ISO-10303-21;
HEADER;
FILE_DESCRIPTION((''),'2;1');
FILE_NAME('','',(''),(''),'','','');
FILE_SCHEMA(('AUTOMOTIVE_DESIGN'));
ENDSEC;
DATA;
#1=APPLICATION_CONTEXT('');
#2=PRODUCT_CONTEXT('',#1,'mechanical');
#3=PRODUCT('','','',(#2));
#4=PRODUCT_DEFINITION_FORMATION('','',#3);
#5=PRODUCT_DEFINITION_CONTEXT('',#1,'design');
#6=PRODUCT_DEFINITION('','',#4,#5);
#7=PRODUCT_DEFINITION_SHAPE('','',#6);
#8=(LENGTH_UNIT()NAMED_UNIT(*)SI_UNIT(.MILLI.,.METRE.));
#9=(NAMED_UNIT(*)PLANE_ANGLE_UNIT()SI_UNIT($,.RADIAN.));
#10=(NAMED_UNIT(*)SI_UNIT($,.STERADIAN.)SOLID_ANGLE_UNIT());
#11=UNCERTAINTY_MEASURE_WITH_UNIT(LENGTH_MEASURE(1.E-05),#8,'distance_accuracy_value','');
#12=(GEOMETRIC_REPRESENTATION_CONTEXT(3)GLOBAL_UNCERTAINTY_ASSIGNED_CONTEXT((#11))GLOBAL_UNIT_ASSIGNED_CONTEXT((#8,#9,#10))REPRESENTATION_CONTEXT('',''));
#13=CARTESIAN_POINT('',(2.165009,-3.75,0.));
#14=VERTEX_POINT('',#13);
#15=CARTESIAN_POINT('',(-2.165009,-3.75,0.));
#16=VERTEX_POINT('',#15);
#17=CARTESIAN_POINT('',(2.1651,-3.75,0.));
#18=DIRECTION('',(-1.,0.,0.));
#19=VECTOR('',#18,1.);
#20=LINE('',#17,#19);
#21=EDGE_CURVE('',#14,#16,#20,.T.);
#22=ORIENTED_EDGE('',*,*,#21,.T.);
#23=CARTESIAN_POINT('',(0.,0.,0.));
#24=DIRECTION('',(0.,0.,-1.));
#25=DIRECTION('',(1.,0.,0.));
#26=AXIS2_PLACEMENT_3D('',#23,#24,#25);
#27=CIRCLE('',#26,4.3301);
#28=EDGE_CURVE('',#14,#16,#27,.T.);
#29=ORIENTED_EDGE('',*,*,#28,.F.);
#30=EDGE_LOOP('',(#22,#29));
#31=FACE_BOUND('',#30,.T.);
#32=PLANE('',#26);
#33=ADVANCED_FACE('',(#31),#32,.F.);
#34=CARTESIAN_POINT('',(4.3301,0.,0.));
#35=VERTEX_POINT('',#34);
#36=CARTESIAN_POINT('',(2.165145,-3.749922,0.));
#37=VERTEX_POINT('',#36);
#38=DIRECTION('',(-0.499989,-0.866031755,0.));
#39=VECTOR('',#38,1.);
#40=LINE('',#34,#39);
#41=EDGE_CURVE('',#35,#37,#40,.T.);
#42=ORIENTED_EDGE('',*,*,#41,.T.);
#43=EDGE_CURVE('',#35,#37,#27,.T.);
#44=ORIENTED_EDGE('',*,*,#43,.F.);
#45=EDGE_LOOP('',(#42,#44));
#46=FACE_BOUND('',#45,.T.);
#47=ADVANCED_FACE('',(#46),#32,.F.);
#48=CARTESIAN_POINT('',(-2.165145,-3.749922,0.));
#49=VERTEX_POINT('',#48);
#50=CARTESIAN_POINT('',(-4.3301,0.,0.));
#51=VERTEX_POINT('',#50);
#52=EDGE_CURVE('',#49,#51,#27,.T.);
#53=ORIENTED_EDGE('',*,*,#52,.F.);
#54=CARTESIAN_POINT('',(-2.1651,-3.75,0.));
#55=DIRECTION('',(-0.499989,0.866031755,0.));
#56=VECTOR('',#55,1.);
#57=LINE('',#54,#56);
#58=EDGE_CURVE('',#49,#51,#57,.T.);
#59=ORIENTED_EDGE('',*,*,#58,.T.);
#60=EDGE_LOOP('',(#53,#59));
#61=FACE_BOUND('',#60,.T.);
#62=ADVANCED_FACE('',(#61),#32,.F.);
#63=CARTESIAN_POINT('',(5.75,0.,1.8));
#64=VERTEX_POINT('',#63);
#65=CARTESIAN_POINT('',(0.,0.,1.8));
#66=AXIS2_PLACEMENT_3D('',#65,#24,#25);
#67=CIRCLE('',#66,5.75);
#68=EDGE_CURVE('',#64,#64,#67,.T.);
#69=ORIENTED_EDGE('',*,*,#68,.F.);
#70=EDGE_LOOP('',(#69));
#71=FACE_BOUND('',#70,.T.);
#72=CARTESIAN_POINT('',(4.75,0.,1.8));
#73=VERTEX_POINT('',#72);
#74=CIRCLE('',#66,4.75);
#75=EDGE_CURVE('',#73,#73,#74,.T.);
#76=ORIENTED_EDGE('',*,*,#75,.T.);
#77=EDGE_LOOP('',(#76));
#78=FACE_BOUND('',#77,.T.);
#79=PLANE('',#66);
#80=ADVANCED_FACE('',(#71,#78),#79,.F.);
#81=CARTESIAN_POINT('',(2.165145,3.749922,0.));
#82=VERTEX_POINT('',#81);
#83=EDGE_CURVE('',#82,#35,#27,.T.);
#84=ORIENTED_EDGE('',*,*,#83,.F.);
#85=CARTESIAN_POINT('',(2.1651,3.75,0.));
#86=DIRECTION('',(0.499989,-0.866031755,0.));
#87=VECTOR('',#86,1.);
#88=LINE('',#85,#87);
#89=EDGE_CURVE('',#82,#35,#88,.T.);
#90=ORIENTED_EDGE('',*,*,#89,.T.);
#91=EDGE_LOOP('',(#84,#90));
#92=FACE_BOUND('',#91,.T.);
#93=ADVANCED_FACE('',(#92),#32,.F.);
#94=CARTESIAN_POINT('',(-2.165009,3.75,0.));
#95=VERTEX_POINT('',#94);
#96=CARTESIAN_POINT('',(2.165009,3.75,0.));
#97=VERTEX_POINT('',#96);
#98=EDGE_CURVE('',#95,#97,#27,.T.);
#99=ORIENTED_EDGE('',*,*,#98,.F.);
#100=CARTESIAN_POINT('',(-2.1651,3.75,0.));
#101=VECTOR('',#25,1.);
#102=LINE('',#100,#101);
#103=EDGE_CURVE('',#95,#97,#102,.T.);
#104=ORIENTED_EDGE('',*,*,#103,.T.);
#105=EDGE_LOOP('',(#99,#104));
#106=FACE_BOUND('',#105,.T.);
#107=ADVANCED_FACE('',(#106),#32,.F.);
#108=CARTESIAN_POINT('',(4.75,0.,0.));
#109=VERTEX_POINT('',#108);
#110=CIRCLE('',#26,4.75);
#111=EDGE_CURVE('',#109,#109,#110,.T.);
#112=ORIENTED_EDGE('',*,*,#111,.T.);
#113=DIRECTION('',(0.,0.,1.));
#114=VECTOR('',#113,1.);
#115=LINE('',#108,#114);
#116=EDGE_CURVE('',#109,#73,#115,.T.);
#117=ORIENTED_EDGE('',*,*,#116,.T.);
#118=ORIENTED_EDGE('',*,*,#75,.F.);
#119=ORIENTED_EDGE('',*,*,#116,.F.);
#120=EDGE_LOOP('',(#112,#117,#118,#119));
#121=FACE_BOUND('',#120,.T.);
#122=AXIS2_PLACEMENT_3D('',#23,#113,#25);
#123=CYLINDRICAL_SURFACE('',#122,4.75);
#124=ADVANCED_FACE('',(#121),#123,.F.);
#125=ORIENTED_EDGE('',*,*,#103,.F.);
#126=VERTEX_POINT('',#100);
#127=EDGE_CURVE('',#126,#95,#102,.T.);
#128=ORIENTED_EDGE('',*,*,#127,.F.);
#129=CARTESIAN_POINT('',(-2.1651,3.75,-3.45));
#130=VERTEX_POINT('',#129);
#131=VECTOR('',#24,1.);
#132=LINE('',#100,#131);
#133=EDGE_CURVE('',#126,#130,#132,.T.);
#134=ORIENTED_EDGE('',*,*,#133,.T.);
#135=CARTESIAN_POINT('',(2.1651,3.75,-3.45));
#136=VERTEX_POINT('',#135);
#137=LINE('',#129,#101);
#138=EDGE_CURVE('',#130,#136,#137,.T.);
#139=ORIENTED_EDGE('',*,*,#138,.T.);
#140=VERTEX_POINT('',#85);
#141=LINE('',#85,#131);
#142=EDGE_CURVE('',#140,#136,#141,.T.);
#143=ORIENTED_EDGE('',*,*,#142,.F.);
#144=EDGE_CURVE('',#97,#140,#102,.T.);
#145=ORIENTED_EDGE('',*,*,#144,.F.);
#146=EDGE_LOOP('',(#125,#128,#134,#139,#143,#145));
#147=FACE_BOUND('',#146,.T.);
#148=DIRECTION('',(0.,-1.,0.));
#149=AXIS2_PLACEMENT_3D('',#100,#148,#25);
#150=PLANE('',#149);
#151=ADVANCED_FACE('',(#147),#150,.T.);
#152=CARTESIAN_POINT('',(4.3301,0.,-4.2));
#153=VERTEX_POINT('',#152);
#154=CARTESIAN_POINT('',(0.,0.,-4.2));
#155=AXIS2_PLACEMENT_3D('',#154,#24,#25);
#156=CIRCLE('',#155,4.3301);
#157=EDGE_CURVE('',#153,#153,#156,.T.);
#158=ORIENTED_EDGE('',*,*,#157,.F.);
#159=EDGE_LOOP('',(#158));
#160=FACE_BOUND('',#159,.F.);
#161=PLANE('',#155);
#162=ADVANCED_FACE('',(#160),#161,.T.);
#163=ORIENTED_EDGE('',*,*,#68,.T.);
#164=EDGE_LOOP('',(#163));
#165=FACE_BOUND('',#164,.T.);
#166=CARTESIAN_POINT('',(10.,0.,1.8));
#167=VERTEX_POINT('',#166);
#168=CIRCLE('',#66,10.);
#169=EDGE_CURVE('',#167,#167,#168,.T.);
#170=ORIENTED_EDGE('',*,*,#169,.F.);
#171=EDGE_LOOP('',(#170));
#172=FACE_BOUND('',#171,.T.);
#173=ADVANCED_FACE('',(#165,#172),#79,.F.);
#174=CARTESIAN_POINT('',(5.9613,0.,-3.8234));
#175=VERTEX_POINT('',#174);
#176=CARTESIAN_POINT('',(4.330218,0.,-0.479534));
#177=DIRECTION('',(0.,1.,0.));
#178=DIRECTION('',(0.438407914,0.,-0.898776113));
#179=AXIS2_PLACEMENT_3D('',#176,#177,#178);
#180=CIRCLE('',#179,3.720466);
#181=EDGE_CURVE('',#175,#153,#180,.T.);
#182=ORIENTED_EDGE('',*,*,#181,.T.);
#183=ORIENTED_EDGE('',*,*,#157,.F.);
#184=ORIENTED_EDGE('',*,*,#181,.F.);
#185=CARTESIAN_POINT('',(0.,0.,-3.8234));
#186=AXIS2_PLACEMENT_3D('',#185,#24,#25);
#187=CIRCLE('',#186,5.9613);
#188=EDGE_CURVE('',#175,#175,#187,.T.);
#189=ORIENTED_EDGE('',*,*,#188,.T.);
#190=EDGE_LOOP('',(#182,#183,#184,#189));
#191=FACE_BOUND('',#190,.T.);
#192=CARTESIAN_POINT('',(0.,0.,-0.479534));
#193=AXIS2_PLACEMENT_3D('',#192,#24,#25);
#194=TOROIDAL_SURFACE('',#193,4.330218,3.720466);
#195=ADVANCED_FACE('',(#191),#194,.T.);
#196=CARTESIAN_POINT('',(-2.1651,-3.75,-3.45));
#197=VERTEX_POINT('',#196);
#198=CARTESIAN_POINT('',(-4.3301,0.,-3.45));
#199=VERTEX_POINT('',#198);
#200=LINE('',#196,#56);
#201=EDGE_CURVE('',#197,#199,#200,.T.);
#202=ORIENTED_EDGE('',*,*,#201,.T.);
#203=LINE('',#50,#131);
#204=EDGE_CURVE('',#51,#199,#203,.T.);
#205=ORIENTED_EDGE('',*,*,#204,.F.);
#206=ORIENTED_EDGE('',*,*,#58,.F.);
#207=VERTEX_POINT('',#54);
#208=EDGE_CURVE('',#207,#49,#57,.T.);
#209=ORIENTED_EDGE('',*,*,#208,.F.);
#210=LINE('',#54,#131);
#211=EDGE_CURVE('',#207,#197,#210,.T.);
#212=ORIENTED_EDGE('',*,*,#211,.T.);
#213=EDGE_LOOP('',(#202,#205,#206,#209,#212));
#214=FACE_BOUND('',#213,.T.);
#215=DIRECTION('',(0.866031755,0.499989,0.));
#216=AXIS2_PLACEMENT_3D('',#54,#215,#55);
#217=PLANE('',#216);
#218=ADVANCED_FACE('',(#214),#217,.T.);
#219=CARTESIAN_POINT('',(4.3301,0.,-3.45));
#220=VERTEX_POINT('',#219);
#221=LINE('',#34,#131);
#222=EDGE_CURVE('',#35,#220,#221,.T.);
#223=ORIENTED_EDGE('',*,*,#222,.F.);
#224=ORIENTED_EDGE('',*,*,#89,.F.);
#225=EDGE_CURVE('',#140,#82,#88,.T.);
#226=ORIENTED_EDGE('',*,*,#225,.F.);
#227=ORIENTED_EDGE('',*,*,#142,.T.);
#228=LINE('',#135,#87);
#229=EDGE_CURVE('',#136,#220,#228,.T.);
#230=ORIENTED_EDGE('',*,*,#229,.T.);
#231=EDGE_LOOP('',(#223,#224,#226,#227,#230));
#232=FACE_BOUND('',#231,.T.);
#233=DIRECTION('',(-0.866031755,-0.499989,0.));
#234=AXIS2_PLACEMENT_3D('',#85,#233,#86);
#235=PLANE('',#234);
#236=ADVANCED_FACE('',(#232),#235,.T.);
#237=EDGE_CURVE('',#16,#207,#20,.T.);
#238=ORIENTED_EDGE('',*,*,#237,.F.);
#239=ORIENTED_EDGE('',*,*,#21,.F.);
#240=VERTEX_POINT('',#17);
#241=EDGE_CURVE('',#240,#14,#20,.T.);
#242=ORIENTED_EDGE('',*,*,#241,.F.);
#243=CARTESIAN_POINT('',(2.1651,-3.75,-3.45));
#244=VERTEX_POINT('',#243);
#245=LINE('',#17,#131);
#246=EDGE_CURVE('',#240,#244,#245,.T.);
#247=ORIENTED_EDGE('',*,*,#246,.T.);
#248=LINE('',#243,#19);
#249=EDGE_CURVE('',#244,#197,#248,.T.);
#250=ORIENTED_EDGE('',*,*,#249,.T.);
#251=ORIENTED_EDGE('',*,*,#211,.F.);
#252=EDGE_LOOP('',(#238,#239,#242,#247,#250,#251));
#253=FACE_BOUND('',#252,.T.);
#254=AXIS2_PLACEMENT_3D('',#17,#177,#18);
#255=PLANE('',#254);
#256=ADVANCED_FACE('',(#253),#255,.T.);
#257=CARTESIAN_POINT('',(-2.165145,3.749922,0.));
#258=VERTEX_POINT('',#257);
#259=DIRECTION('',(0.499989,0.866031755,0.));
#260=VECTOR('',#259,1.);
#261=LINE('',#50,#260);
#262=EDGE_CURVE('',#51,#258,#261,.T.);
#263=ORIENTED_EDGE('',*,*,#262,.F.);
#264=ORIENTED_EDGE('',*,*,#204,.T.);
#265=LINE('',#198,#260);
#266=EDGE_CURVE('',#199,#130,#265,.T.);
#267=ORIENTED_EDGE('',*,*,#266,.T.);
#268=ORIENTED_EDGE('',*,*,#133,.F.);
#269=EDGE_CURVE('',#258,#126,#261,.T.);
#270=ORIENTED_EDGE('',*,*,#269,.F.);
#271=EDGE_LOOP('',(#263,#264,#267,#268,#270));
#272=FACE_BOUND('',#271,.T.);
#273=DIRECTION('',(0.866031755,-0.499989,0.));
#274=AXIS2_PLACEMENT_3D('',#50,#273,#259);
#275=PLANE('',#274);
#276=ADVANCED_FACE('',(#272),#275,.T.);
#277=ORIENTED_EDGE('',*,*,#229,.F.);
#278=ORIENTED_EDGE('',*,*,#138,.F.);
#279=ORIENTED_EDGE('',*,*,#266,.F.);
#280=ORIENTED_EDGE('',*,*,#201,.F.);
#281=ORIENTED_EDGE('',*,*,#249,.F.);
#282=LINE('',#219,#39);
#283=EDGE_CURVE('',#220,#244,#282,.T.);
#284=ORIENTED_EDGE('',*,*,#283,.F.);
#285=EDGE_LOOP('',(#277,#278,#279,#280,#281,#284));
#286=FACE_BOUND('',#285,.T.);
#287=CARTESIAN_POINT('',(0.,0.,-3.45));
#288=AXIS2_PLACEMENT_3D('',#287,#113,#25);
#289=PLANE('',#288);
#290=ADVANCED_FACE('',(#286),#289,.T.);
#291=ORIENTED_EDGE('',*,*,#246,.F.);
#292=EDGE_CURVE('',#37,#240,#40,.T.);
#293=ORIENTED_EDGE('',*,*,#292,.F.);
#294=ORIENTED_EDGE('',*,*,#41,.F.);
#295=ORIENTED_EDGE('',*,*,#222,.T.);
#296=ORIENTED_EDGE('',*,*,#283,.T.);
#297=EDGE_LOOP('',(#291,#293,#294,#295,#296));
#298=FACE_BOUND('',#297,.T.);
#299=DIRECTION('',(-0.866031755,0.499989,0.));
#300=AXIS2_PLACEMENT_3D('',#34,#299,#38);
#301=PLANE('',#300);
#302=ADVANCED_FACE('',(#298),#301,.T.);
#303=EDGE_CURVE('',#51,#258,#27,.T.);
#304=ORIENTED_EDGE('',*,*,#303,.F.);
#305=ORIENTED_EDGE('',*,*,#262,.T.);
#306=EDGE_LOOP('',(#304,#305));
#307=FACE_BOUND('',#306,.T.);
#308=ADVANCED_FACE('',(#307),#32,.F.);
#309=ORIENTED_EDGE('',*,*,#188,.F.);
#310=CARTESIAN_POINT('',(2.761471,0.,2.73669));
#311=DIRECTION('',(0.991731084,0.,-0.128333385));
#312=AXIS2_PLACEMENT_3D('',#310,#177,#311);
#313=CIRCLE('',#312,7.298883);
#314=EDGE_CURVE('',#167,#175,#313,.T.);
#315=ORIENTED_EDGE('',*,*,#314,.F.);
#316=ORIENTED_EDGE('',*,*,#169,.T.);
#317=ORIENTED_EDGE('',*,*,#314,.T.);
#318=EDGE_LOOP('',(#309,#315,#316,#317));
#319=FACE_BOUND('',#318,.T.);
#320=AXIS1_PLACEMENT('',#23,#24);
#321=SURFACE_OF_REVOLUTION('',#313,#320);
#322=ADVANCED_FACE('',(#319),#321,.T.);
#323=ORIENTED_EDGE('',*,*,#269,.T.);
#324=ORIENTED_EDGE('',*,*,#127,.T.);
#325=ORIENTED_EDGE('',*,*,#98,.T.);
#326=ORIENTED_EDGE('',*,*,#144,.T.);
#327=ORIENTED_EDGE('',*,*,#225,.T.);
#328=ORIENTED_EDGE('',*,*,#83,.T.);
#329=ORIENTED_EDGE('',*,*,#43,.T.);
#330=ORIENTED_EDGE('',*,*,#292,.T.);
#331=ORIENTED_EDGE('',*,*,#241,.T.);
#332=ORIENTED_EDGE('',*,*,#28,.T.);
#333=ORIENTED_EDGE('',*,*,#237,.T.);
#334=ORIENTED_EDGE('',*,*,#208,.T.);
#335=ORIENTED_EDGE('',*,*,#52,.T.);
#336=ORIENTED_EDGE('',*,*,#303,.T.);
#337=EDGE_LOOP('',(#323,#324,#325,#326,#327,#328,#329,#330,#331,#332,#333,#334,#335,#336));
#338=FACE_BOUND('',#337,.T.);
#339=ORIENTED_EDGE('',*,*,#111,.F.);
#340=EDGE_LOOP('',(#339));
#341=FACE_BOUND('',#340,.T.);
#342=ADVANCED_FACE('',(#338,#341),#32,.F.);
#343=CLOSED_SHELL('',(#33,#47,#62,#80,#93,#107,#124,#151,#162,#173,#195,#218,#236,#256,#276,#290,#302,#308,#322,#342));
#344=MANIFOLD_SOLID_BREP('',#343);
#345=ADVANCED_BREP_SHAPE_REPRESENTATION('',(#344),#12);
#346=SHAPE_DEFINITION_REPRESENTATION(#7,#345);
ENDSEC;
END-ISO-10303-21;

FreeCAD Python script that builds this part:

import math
import FreeCAD as App
import Part
import Sketcher
from FreeCAD import Vector
Q = App.Units.Quantity


def add_polygon(sketch, points):
    """Adds a closed chain of lines whose ends are joined by coincident constraints."""
    first, n = sketch.GeometryCount, len(points)
    for a, b in zip(points, points[1:] + points[:1]):
        sketch.addGeometry(Part.LineSegment(App.Vector(*a, 0), App.Vector(*b, 0)), False)
    for i in range(n):
        sketch.addConstraint(Sketcher.Constraint("Coincident", first + i, 2, first + (i + 1) % n, 1))

doc = App.newDocument("Part")
body = doc.addObject("PartDesign::Body", "Body")

sketch1 = doc.addObject("Sketcher::SketchObject", "Sketch")
body.addObject(sketch1)
sketch1.AttachmentSupport = (doc.XZ_Plane, [""])
sketch1.MapMode = "FlatFace"
sketch1.addGeometry(Part.LineSegment(Vector(0, -4.2, 0), Vector(0, 0, 0)), False)
sketch1.addGeometry(Part.LineSegment(Vector(0, 0, 0), Vector(4.8, 0, 0)), False)
sketch1.addGeometry(Part.LineSegment(Vector(4.8, 0, 0), Vector(4.8, 1.8, 0)), False)
sketch1.addGeometry(Part.LineSegment(Vector(4.8, 1.8, 0), Vector(10, 1.8, 0)), False)
sketch1.addGeometry(Part.ArcOfCircle(Part.Circle(Vector(2.8, 2.7, 0), Vector(0, 0, 1), 7.3), math.radians(-64), math.radians(-7)), False)
sketch1.addGeometry(Part.ArcOfCircle(Part.Circle(Vector(4.3, -0.5, 0), Vector(0, 0, 1), 3.7), math.radians(-90), math.radians(-64)), False)
sketch1.addGeometry(Part.LineSegment(Vector(4.3, -4.2, 0), Vector(0, -4.2, 0)), False)
sketch1.addConstraint(Sketcher.Constraint("Coincident", 0, 2, 1, 1))
sketch1.addConstraint(Sketcher.Constraint("Coincident", 1, 2, 2, 1))
sketch1.addConstraint(Sketcher.Constraint("Coincident", 2, 2, 3, 1))
sketch1.addConstraint(Sketcher.Constraint("Coincident", 3, 2, 4, 2))
sketch1.addConstraint(Sketcher.Constraint("Tangent", 4, 1, 5, 2))
sketch1.addConstraint(Sketcher.Constraint("Tangent", 5, 1, 6, 1))
sketch1.addConstraint(Sketcher.Constraint("Coincident", 6, 2, 0, 1))
sketch1.addConstraint(Sketcher.Constraint("Vertical", 0))
sketch1.addConstraint(Sketcher.Constraint("Horizontal", 1))
sketch1.addConstraint(Sketcher.Constraint("Vertical", 2))
sketch1.addConstraint(Sketcher.Constraint("Horizontal", 3))
sketch1.addConstraint(Sketcher.Constraint("Horizontal", 6))
sketch1.addConstraint(Sketcher.Constraint("Coincident", 0, 2, -1, 1))
sketch1.addConstraint(Sketcher.Constraint("DistanceY", 0, 1, 0, 2, Q("4.2 mm")))
sketch1.addConstraint(Sketcher.Constraint("DistanceY", 2, 1, 2, 2, Q("1.8 mm")))
sketch1.addConstraint(Sketcher.Constraint("DistanceX", -1, 1, 3, 2, Q("10 mm")))
sketch1.addConstraint(Sketcher.Constraint("DistanceX", 1, 1, 1, 2, Q("4.75 mm")))
sketch1.addConstraint(Sketcher.Constraint("DistanceX", 6, 2, 6, 1, Q("4.33 mm")))
sketch1.addConstraint(Sketcher.Constraint("Radius", 4, Q("7.2986 mm")))
sketch1.addConstraint(Sketcher.Constraint("Radius", 5, Q("3.7208 mm")))
revolution = doc.addObject("PartDesign::Revolution", "Revolution")
body.addObject(revolution)
revolution.Profile = sketch1
revolution.ReferenceAxis = (sketch1, ["V_Axis"])
revolution.Angle = 360

sketch2 = doc.addObject("Sketcher::SketchObject", "Sketch001")
body.addObject(sketch2)
sketch2.AttachmentSupport = (doc.XY_Plane, [""])
sketch2.MapMode = "FlatFace"
add_polygon(sketch2, [(2.2, -3.8), (4.3, 0), (2.2, 3.8), (-2.2, 3.8), (-4.3, 0), (-2.2, -3.8)])
sketch2.addConstraint(Sketcher.Constraint("Horizontal", 2))
sketch2.addConstraint(Sketcher.Constraint("Horizontal", 5))
sketch2.addConstraint(Sketcher.Constraint("Symmetric", 0, 2, 3, 2, -1, 1))
sketch2.addConstraint(Sketcher.Constraint("Symmetric", 1, 2, 4, 2, -1, 1))
sketch2.addConstraint(Sketcher.Constraint("PointOnObject", 0, 2, -1))
sketch2.addConstraint(Sketcher.Constraint("Parallel", 0, 3))
sketch2.addConstraint(Sketcher.Constraint("Vertical", 2, 2, 4, 2))
sketch2.addConstraint(Sketcher.Constraint("DistanceY", 4, 2, 2, 2, Q("7.5 mm")))
sketch2.addConstraint(Sketcher.Constraint("Angle", 0, Q("60.0007 deg")))
sketch2.addConstraint(Sketcher.Constraint("DistanceX", -1, 1, 0, 2, Q("4.33 mm")))
pocket1 = doc.addObject("PartDesign::Pocket", "Pocket")
body.addObject(pocket1)
pocket1.Profile = sketch2
pocket1.Length = 3.45

doc.recompute()
